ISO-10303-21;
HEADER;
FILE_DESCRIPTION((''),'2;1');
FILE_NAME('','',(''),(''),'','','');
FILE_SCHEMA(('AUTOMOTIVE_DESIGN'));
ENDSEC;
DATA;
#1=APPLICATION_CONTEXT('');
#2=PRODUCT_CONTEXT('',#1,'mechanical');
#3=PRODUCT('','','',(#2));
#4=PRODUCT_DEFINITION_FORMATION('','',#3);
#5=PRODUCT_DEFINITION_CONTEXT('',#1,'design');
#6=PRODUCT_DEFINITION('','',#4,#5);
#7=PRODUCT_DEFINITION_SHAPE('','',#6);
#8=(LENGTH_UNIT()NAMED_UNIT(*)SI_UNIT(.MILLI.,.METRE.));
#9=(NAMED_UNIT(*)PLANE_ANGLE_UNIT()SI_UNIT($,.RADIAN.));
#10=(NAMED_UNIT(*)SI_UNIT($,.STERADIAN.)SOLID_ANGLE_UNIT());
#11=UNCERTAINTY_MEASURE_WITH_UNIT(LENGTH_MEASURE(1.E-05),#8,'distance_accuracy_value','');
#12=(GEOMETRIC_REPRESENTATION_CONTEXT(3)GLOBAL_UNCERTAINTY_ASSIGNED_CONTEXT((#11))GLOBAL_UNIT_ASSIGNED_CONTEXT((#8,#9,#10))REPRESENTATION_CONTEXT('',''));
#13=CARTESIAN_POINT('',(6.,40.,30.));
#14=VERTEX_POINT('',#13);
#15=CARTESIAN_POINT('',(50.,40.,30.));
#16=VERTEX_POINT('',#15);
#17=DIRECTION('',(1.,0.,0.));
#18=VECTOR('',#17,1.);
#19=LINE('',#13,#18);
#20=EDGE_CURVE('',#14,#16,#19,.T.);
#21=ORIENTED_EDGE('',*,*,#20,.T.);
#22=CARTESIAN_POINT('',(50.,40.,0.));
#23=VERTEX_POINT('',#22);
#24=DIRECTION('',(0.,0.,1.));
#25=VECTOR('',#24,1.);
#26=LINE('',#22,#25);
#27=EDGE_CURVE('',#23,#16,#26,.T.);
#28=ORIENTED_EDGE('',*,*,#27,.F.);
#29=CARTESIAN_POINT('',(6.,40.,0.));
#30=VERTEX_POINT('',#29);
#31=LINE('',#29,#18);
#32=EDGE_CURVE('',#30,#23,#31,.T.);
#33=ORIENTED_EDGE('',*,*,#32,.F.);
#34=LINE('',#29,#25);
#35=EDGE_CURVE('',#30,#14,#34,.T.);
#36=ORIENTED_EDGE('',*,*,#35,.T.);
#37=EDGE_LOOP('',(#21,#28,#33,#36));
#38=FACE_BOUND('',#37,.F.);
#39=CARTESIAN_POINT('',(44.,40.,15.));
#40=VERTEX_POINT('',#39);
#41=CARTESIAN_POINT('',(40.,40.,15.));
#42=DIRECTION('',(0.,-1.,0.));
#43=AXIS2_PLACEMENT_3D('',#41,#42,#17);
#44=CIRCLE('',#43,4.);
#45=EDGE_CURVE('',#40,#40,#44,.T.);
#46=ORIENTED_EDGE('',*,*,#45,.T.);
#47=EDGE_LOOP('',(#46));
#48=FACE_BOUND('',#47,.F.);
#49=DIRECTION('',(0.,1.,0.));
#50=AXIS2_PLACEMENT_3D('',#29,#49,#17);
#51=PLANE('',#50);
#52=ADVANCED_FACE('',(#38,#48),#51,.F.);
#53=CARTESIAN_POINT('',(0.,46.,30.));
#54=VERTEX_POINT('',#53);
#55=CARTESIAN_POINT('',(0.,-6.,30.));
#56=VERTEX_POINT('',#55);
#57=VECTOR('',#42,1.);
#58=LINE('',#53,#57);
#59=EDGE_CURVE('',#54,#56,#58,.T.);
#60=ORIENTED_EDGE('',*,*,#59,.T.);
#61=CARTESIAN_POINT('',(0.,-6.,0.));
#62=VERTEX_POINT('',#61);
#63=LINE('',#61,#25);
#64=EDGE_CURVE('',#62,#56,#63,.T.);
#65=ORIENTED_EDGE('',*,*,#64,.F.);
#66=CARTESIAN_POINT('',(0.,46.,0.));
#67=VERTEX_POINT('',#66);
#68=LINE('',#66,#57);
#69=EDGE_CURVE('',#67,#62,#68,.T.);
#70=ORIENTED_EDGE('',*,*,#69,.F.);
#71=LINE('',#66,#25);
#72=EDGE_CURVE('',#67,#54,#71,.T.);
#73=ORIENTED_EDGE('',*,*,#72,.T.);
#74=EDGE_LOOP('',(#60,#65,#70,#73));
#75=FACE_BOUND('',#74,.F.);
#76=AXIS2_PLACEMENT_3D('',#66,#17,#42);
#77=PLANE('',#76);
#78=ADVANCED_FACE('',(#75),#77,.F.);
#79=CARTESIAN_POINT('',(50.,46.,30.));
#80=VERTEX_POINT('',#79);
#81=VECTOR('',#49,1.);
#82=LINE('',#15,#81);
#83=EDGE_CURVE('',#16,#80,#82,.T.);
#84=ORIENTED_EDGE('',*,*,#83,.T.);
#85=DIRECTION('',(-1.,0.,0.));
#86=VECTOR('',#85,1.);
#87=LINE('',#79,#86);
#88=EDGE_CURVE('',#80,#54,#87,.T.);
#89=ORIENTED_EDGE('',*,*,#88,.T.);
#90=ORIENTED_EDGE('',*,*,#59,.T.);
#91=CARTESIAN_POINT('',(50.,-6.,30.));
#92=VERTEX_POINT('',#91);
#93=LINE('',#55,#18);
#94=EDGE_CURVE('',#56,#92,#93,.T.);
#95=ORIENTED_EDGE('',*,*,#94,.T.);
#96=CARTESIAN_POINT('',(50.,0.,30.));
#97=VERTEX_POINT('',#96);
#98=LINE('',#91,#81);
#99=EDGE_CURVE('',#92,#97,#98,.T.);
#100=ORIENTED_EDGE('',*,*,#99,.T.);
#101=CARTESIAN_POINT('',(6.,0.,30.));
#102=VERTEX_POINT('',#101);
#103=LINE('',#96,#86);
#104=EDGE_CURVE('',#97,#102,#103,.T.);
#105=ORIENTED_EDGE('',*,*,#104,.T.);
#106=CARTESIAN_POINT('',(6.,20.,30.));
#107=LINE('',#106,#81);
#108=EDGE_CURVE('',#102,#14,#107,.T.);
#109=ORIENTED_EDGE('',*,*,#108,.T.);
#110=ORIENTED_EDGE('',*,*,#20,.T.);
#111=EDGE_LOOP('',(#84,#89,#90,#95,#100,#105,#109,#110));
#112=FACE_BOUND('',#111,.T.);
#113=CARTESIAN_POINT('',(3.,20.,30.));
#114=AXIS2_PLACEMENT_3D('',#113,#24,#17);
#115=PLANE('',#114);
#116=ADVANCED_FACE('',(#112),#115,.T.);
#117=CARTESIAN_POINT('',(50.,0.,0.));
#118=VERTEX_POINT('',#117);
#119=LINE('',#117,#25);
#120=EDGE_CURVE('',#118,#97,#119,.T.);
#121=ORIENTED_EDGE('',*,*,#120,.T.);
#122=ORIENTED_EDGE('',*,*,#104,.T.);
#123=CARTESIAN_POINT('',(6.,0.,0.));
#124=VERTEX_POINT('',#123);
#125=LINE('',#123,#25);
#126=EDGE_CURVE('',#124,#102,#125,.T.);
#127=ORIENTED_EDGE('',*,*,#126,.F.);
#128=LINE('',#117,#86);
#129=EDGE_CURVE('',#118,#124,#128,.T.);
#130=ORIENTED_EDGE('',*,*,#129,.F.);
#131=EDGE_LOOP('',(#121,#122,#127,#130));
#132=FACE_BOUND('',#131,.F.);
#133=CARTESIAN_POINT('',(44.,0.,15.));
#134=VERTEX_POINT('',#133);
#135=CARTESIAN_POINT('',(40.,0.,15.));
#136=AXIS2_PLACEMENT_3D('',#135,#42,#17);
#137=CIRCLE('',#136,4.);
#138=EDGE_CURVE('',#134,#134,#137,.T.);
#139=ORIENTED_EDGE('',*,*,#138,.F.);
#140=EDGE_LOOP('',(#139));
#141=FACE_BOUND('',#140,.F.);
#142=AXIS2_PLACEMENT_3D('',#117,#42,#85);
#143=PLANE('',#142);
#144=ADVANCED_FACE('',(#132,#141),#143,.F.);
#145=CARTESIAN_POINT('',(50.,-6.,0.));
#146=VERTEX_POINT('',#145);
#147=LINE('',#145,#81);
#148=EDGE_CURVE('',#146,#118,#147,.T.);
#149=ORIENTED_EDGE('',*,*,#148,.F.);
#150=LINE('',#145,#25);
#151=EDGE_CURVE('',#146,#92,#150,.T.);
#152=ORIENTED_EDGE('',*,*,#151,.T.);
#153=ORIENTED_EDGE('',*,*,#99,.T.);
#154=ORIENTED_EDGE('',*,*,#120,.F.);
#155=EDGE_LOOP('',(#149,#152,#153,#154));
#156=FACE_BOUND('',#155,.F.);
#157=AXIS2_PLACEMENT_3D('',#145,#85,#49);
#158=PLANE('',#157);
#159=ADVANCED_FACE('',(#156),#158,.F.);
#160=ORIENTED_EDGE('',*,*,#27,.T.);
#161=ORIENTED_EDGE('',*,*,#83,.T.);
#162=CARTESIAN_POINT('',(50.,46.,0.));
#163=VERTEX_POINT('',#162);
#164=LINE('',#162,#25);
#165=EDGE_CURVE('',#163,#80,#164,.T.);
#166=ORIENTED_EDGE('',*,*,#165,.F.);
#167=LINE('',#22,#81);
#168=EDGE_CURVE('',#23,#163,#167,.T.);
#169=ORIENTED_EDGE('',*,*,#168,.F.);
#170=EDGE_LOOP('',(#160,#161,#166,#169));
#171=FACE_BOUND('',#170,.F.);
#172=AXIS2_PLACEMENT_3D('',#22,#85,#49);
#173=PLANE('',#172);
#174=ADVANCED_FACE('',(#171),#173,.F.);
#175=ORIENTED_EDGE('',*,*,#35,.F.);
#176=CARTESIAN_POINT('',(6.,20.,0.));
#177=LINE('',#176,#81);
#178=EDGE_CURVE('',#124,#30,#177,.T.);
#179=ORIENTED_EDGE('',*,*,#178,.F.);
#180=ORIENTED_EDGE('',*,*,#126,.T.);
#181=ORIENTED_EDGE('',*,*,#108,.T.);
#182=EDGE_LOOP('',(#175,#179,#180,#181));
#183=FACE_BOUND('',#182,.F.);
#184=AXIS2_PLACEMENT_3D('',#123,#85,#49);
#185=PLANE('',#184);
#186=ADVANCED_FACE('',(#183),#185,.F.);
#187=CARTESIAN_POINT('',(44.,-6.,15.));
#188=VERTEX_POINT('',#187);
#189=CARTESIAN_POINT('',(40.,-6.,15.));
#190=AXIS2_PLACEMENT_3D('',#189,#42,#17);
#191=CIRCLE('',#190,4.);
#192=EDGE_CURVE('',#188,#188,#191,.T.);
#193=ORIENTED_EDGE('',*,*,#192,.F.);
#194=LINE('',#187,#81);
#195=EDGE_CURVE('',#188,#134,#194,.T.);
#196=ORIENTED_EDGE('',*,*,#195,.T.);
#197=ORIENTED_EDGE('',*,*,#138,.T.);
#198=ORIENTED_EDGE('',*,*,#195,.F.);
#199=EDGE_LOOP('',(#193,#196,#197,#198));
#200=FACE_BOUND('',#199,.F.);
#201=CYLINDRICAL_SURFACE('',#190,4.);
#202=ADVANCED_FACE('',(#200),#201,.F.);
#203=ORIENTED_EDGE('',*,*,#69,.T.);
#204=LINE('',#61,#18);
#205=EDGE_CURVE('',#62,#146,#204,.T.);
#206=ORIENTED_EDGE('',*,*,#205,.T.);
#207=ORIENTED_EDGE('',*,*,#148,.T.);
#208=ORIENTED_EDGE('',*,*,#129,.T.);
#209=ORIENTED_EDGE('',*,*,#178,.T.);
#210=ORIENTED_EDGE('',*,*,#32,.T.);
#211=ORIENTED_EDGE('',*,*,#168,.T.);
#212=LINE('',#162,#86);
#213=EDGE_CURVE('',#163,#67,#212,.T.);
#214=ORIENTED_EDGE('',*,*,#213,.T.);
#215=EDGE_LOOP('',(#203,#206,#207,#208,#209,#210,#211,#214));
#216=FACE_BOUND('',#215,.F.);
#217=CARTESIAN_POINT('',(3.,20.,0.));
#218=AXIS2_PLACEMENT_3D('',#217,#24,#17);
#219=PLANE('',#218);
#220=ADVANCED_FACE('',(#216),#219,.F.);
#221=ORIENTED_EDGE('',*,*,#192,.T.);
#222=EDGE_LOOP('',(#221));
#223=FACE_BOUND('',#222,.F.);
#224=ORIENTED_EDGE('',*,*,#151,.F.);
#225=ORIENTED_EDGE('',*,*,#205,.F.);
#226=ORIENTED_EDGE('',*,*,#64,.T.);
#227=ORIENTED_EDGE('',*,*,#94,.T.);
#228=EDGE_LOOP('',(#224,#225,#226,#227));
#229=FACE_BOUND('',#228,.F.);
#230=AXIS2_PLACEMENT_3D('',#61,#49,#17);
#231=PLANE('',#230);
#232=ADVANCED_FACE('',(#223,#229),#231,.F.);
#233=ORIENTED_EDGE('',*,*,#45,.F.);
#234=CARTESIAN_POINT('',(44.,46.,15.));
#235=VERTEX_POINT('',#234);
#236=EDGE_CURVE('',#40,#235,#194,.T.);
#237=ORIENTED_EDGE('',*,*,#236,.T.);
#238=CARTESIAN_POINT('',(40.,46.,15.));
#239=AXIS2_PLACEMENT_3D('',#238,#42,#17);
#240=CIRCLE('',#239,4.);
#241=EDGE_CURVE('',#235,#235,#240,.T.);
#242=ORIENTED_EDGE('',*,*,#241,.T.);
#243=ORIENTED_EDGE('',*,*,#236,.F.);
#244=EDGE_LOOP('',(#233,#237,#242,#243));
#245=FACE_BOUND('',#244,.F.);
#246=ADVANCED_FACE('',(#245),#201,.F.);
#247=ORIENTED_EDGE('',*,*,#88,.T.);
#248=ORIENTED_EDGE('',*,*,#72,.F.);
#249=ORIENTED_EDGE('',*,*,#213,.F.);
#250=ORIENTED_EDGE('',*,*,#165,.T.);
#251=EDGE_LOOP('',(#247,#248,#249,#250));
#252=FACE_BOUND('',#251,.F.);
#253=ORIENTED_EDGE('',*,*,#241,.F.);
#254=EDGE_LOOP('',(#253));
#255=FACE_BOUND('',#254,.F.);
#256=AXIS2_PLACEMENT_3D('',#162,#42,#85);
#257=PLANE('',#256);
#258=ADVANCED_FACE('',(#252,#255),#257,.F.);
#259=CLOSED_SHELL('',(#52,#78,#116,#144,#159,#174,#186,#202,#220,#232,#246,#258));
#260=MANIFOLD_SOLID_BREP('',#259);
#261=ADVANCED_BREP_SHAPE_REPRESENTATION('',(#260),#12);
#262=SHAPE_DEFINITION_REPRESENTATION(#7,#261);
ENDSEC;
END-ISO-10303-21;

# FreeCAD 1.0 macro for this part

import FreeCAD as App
import Part
import Sketcher
from FreeCAD import Vector

doc = App.newDocument("Part")
params = doc.addObject("Spreadsheet::Sheet", "Params")
for row, (alias, value) in enumerate([
    ("sketch1_width", "50 mm"),
    ("sketch1_width2", "44 mm"),
    ("sketch1_height", "6 mm"),
    ("sketch1_height2", "40 mm"),
    ("pad1_length", "30 mm"),
    ("sketch2_diameter", "8 mm"),
], start=1):
    params.set(f"A{row}", alias)
    params.set(f"B{row}", "=" + value)
    params.setAlias(f"B{row}", alias)

body = doc.addObject("PartDesign::Body", "Body")

# Sketch on XY plane
sketch1 = doc.addObject("Sketcher::SketchObject", "Sketch")
body.addObject(sketch1)
sketch1.AttachmentSupport = (doc.XY_Plane, [""])
sketch1.MapMode = "FlatFace"
sketch1.addGeometry(Part.LineSegment(Vector(0, -6, 0), Vector(50, -6, 0)), False)
sketch1.addGeometry(Part.LineSegment(Vector(50, -6, 0), Vector(50, 0, 0)), False)
sketch1.addGeometry(Part.LineSegment(Vector(50, 0, 0), Vector(6, 0, 0)), False)
sketch1.addGeometry(Part.LineSegment(Vector(6, 0, 0), Vector(6, 40, 0)), False)
sketch1.addGeometry(Part.LineSegment(Vector(6, 40, 0), Vector(50, 40, 0)), False)
sketch1.addGeometry(Part.LineSegment(Vector(50, 40, 0), Vector(50, 46, 0)), False)
sketch1.addGeometry(Part.LineSegment(Vector(50, 46, 0), Vector(0, 46, 0)), False)
sketch1.addGeometry(Part.LineSegment(Vector(0, 46, 0), Vector(0, -6, 0)), False)
sketch1.addConstraint(Sketcher.Constraint("Coincident", 0, 2, 1, 1))
sketch1.addConstraint(Sketcher.Constraint("Coincident", 1, 2, 2, 1))
sketch1.addConstraint(Sketcher.Constraint("Coincident", 2, 2, 3, 1))
sketch1.addConstraint(Sketcher.Constraint("Coincident", 3, 2, 4, 1))
sketch1.addConstraint(Sketcher.Constraint("Coincident", 4, 2, 5, 1))
sketch1.addConstraint(Sketcher.Constraint("Coincident", 5, 2, 6, 1))
sketch1.addConstraint(Sketcher.Constraint("Coincident", 6, 2, 7, 1))
sketch1.addConstraint(Sketcher.Constraint("Coincident", 7, 2, 0, 1))
sketch1.addConstraint(Sketcher.Constraint("Horizontal", 0))
sketch1.addConstraint(Sketcher.Constraint("Vertical", 1))
sketch1.addConstraint(Sketcher.Constraint("Horizontal", 2))
sketch1.addConstraint(Sketcher.Constraint("Vertical", 3))
sketch1.addConstraint(Sketcher.Constraint("Horizontal", 4))
sketch1.addConstraint(Sketcher.Constraint("Vertical", 5))
sketch1.addConstraint(Sketcher.Constraint("Horizontal", 6))
sketch1.addConstraint(Sketcher.Constraint("Vertical", 7))
sketch1.addConstraint(Sketcher.Constraint("PointOnObject", 1, 2, -1))
sketch1.addConstraint(Sketcher.Constraint("PointOnObject", 6, 2, -2))
sketch1.addConstraint(Sketcher.Constraint("Vertical", 1, 2, 4, 2))
sketch1.addConstraint(Sketcher.Constraint("Equal", 1, 5))
sketch1.addConstraint(Sketcher.Constraint("DistanceX", 0, 1, 0, 2, 50.0))
sketch1.addConstraint(Sketcher.Constraint("DistanceX", 2, 2, 2, 1, 44.0))
sketch1.addConstraint(Sketcher.Constraint("DistanceY", 1, 1, 1, 2, 6.0))
sketch1.addConstraint(Sketcher.Constraint("DistanceY", 3, 1, 3, 2, 40.0))
sketch1.setExpression("Constraints[20]", "Params.sketch1_width")
sketch1.setExpression("Constraints[21]", "Params.sketch1_width2")
sketch1.setExpression("Constraints[22]", "Params.sketch1_height")
sketch1.setExpression("Constraints[23]", "Params.sketch1_height2")
pad1 = doc.addObject("PartDesign::Pad", "Pad")
body.addObject(pad1)
pad1.Profile = sketch1
pad1.setExpression("Length", "Params.pad1_length")

# Sketch on XZ plane
sketch2 = doc.addObject("Sketcher::SketchObject", "Sketch001")
body.addObject(sketch2)
sketch2.AttachmentSupport = (doc.XZ_Plane, [""])
sketch2.MapMode = "FlatFace"
sketch2.AttachmentOffset = App.Placement(Vector(0, 0, 6), App.Rotation())
sketch2.addGeometry(Part.Circle(Vector(40, 15, 0), Vector(0, 0, 1), 4), False)
sketch2.addConstraint(Sketcher.Constraint("Diameter", 0, 8.0))
sketch2.addConstraint(Sketcher.Constraint("DistanceX", -1, 1, 0, 3, 40.0))
sketch2.addConstraint(Sketcher.Constraint("DistanceY", -1, 1, 0, 3, 15.0))
sketch2.setExpression("Constraints[0]", "Params.sketch2_diameter")
pocket1 = doc.addObject("PartDesign::Pocket", "Pocket")
body.addObject(pocket1)
pocket1.Profile = sketch2
pocket1.Type = "ThroughAll"

doc.recompute()
